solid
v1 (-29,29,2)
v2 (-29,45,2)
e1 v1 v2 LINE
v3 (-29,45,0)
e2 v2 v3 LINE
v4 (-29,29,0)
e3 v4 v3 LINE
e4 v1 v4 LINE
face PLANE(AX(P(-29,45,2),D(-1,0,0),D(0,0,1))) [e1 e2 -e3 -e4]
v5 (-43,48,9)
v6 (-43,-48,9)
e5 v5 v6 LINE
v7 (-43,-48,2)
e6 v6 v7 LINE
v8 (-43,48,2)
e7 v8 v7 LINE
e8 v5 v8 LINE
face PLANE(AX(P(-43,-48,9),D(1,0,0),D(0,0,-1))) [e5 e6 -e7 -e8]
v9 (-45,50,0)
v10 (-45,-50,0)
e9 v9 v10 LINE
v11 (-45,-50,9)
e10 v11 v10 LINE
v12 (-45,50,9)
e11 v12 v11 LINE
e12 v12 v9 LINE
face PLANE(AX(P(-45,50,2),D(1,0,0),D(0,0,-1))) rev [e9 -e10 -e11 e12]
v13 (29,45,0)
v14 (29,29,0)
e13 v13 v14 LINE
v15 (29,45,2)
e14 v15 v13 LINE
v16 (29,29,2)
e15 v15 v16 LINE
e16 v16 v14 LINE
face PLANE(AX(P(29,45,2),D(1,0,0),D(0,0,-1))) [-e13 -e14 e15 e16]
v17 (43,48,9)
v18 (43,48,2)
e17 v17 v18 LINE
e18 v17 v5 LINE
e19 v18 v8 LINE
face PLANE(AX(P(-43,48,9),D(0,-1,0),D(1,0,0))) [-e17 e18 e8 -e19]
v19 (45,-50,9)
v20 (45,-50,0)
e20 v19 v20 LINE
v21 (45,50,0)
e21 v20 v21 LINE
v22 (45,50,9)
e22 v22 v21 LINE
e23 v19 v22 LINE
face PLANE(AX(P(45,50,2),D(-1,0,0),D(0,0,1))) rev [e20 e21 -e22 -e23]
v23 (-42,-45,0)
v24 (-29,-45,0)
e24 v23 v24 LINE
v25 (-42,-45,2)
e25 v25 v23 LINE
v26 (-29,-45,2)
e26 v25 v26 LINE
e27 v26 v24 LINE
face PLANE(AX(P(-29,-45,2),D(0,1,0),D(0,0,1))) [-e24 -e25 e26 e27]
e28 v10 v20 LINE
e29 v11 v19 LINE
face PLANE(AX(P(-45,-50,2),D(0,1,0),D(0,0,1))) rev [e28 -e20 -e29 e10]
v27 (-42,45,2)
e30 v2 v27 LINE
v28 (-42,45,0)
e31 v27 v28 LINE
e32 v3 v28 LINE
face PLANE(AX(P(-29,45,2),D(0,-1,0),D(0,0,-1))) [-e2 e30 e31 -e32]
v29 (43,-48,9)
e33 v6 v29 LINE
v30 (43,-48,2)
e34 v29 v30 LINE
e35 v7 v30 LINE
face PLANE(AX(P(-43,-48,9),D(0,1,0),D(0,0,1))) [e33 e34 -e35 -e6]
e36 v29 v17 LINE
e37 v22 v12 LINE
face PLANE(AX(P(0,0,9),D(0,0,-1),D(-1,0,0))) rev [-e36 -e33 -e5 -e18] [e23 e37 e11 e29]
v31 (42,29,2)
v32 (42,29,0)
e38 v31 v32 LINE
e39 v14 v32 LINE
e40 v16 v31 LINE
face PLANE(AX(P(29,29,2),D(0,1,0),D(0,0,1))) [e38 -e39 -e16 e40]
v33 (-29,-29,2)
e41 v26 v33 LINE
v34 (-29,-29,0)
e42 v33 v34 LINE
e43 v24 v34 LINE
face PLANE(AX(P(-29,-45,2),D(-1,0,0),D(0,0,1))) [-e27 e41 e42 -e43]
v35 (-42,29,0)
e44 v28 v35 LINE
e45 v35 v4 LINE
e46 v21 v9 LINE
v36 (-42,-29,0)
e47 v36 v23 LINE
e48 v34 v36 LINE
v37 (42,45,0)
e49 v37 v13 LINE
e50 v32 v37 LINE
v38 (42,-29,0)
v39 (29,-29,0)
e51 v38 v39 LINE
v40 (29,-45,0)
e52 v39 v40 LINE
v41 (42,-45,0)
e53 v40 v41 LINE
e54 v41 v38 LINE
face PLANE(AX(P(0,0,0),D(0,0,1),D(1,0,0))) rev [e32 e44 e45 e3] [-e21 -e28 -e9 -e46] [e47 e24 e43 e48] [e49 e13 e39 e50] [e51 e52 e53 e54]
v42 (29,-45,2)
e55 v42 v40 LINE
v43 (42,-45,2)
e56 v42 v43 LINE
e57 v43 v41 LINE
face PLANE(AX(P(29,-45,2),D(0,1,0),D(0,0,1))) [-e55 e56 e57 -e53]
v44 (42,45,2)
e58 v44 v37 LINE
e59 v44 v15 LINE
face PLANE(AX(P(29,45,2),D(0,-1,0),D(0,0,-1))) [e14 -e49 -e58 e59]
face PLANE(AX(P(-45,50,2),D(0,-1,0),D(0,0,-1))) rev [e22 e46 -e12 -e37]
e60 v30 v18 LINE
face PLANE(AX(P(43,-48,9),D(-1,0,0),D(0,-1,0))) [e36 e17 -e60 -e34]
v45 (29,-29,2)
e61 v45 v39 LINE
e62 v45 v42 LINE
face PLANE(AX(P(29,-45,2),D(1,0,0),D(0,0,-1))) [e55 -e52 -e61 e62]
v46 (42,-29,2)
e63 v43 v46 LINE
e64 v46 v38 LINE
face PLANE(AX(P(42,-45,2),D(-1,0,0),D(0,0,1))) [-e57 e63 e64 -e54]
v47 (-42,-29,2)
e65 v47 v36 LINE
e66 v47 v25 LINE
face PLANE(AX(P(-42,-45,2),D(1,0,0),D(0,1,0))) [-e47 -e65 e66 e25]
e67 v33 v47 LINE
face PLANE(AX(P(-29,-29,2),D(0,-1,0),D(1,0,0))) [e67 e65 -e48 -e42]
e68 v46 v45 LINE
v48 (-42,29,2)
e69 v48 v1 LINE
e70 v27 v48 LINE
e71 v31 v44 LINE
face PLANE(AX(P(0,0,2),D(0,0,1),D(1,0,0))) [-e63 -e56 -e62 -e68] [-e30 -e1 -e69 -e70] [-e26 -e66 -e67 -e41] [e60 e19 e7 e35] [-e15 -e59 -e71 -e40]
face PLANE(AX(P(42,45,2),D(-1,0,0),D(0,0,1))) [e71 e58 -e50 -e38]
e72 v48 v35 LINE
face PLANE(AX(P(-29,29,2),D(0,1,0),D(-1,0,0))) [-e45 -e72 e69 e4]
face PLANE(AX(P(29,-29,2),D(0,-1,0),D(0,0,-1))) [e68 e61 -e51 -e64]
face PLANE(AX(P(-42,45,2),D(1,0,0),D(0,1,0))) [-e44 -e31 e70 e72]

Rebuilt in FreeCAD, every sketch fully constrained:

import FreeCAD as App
import Part
import Sketcher

doc = App.newDocument("Part")
params = doc.addObject("Spreadsheet::Sheet", "Params")
for row, (alias, value) in enumerate([
    ("sketch1_width", "90 mm"),
    ("sketch1_width2", "13 mm"),
    ("sketch1_height", "100 mm"),
    ("sketch1_height2", "16 mm"),
    ("pad1_length", "2 mm"),
    ("sketch2_width", "90 mm"),
    ("sketch2_width2", "86 mm"),
    ("sketch2_height", "100 mm"),
    ("sketch2_height2", "96 mm"),
    ("pad2_length", "7 mm"),
], start=1):
    params.set(f"A{row}", alias)
    params.set(f"B{row}", "=" + value)
    params.setAlias(f"B{row}", alias)

body = doc.addObject("PartDesign::Body", "Body")

# Sketch on XY plane
sketch1 = body.newObject("Sketcher::SketchObject", "Sketch")
sketch1.AttachmentSupport = (doc.getObject("XY_Plane"), [""])
sketch1.MapMode = "FlatFace"
sketch1.addGeometry([
    Part.LineSegment(App.Vector(-45, 50, 0), App.Vector(-45, -50, 0)),  # 0
    Part.LineSegment(App.Vector(-45, -50, 0), App.Vector(45, -50, 0)),  # 1
    Part.LineSegment(App.Vector(45, -50, 0), App.Vector(45, 50, 0)),  # 2
    Part.LineSegment(App.Vector(45, 50, 0), App.Vector(-45, 50, 0)),  # 3
    Part.LineSegment(App.Vector(-29, -45, 0), App.Vector(-42, -45, 0)),  # 4
    Part.LineSegment(App.Vector(-42, -45, 0), App.Vector(-42, -29, 0)),  # 5
    Part.LineSegment(App.Vector(-42, -29, 0), App.Vector(-29, -29, 0)),  # 6
    Part.LineSegment(App.Vector(-29, -29, 0), App.Vector(-29, -45, 0)),  # 7
    Part.LineSegment(App.Vector(42, -45, 0), App.Vector(29, -45, 0)),  # 8
    Part.LineSegment(App.Vector(29, -45, 0), App.Vector(29, -29, 0)),  # 9
    Part.LineSegment(App.Vector(29, -29, 0), App.Vector(42, -29, 0)),  # 10
    Part.LineSegment(App.Vector(42, -29, 0), App.Vector(42, -45, 0)),  # 11
    Part.LineSegment(App.Vector(-29, 29, 0), App.Vector(-42, 29, 0)),  # 12
    Part.LineSegment(App.Vector(-42, 29, 0), App.Vector(-42, 45, 0)),  # 13
    Part.LineSegment(App.Vector(-42, 45, 0), App.Vector(-29, 45, 0)),  # 14
    Part.LineSegment(App.Vector(-29, 45, 0), App.Vector(-29, 29, 0)),  # 15
    Part.LineSegment(App.Vector(42, 29, 0), App.Vector(29, 29, 0)),  # 16
    Part.LineSegment(App.Vector(29, 29, 0), App.Vector(29, 45, 0)),  # 17
    Part.LineSegment(App.Vector(29, 45, 0), App.Vector(42, 45, 0)),  # 18
    Part.LineSegment(App.Vector(42, 45, 0), App.Vector(42, 29, 0)),  # 19
], False)
sketch1.addConstraint([
    Sketcher.Constraint("Coincident", 0, 2, 1, 1),
    Sketcher.Constraint("Coincident", 1, 2, 2, 1),
    Sketcher.Constraint("Coincident", 2, 2, 3, 1),
    Sketcher.Constraint("Coincident", 3, 2, 0, 1),
    Sketcher.Constraint("Coincident", 4, 2, 5, 1),
    Sketcher.Constraint("Coincident", 5, 2, 6, 1),
    Sketcher.Constraint("Coincident", 6, 2, 7, 1),
    Sketcher.Constraint("Coincident", 7, 2, 4, 1),
    Sketcher.Constraint("Coincident", 8, 2, 9, 1),
    Sketcher.Constraint("Coincident", 9, 2, 10, 1),
    Sketcher.Constraint("Coincident", 10, 2, 11, 1),
    Sketcher.Constraint("Coincident", 11, 2, 8, 1),
    Sketcher.Constraint("Coincident", 12, 2, 13, 1),
    Sketcher.Constraint("Coincident", 13, 2, 14, 1),
    Sketcher.Constraint("Coincident", 14, 2, 15, 1),
    Sketcher.Constraint("Coincident", 15, 2, 12, 1),
    Sketcher.Constraint("Coincident", 16, 2, 17, 1),
    Sketcher.Constraint("Coincident", 17, 2, 18, 1),
    Sketcher.Constraint("Coincident", 18, 2, 19, 1),
    Sketcher.Constraint("Coincident", 19, 2, 16, 1),
    Sketcher.Constraint("Vertical", 0),
    Sketcher.Constraint("Horizontal", 1),
    Sketcher.Constraint("Vertical", 2),
    Sketcher.Constraint("Horizontal", 3),
    Sketcher.Constraint("Horizontal", 4),
    Sketcher.Constraint("Vertical", 5),
    Sketcher.Constraint("Horizontal", 6),
    Sketcher.Constraint("Vertical", 7),
    Sketcher.Constraint("Horizontal", 8),
    Sketcher.Constraint("Vertical", 9),
    Sketcher.Constraint("Horizontal", 10),
    Sketcher.Constraint("Vertical", 11),
    Sketcher.Constraint("Horizontal", 12),
    Sketcher.Constraint("Vertical", 13),
    Sketcher.Constraint("Horizontal", 14),
    Sketcher.Constraint("Vertical", 15),
    Sketcher.Constraint("Horizontal", 16),
    Sketcher.Constraint("Vertical", 17),
    Sketcher.Constraint("Horizontal", 18),
    Sketcher.Constraint("Vertical", 19),
    Sketcher.Constraint("Symmetric", 0, 2, 2, 2, -1, 1),
    Sketcher.Constraint("Symmetric", 10, 2, 12, 2, -1, 1),
    Sketcher.Constraint("Symmetric", 8, 2, 14, 2, -1, 1),
    Sketcher.Constraint("Symmetric", 6, 2, 16, 2, -1, 1),
    Sketcher.Constraint("Symmetric", 4, 2, 18, 2, -1, 1),
    Sketcher.Constraint("Symmetric", 7, 2, 8, 2, -2),
    Sketcher.Constraint("Symmetric", 5, 2, 10, 2, -2),
    Sketcher.Constraint("DistanceX", 1, 1, 1, 2, 90.0),
    Sketcher.Constraint("DistanceX", 4, 2, 4, 1, 13.0),
    Sketcher.Constraint("DistanceY", 0, 2, 0, 1, 100.0),
    Sketcher.Constraint("DistanceY", 5, 1, 5, 2, 16.0),
    Sketcher.Constraint("DistanceX", 4, 2, -1, 1, 42.0),
    Sketcher.Constraint("DistanceY", 4, 2, -1, 1, 45.0),
])
sketch1.setExpression("Constraints[47]", "Params.sketch1_width")
sketch1.setExpression("Constraints[48]", "Params.sketch1_width2")
sketch1.setExpression("Constraints[49]", "Params.sketch1_height")
sketch1.setExpression("Constraints[50]", "Params.sketch1_height2")
pad1 = body.newObject("PartDesign::Pad", "Pad")
pad1.Profile = sketch1
pad1.setExpression("Length", "Params.pad1_length")

# Sketch on XY plane
sketch2 = body.newObject("Sketcher::SketchObject", "Sketch001")
sketch2.AttachmentSupport = (doc.getObject("XY_Plane"), [""])
sketch2.MapMode = "FlatFace"
sketch2.AttachmentOffset = App.Placement(App.Vector(0, 0, 2), App.Rotation())
sketch2.addGeometry([
    Part.LineSegment(App.Vector(-45, 50, 0), App.Vector(-45, -50, 0)),  # 0
    Part.LineSegment(App.Vector(-45, -50, 0), App.Vector(45, -50, 0)),  # 1
    Part.LineSegment(App.Vector(45, -50, 0), App.Vector(45, 50, 0)),  # 2
    Part.LineSegment(App.Vector(45, 50, 0), App.Vector(-45, 50, 0)),  # 3
    Part.LineSegment(App.Vector(43, -48, 0), App.Vector(-43, -48, 0)),  # 4
    Part.LineSegment(App.Vector(-43, -48, 0), App.Vector(-43, 48, 0)),  # 5
    Part.LineSegment(App.Vector(-43, 48, 0), App.Vector(43, 48, 0)),  # 6
    Part.LineSegment(App.Vector(43, 48, 0), App.Vector(43, -48, 0)),  # 7
], False)
sketch2.addConstraint([
    Sketcher.Constraint("Coincident", 0, 2, 1, 1),
    Sketcher.Constraint("Coincident", 1, 2, 2, 1),
    Sketcher.Constraint("Coincident", 2, 2, 3, 1),
    Sketcher.Constraint("Coincident", 3, 2, 0, 1),
    Sketcher.Constraint("Coincident", 4, 2, 5, 1),
    Sketcher.Constraint("Coincident", 5, 2, 6, 1),
    Sketcher.Constraint("Coincident", 6, 2, 7, 1),
    Sketcher.Constraint("Coincident", 7, 2, 4, 1),
    Sketcher.Constraint("Vertical", 0),
    Sketcher.Constraint("Horizontal", 1),
    Sketcher.Constraint("Vertical", 2),
    Sketcher.Constraint("Horizontal", 3),
    Sketcher.Constraint("Horizontal", 4),
    Sketcher.Constraint("Vertical", 5),
    Sketcher.Constraint("Horizontal", 6),
    Sketcher.Constraint("Vertical", 7),
    Sketcher.Constraint("Symmetric", 0, 2, 2, 2, -1, 1),
    Sketcher.Constraint("Symmetric", 4, 2, 6, 2, -1, 1),
    Sketcher.Constraint("DistanceX", 1, 1, 1, 2, 90.0),
    Sketcher.Constraint("DistanceX", 4, 2, 4, 1, 86.0),
    Sketcher.Constraint("DistanceY", 0, 2, 0, 1, 100.0),
    Sketcher.Constraint("DistanceY", 5, 1, 5, 2, 96.0),
])
sketch2.setExpression("Constraints[18]", "Params.sketch2_width")
sketch2.setExpression("Constraints[19]", "Params.sketch2_width2")
sketch2.setExpression("Constraints[20]", "Params.sketch2_height")
sketch2.setExpression("Constraints[21]", "Params.sketch2_height2")
pad2 = body.newObject("PartDesign::Pad", "Pad001")
pad2.Profile = sketch2
pad2.setExpression("Length", "Params.pad2_length")

doc.recompute()
